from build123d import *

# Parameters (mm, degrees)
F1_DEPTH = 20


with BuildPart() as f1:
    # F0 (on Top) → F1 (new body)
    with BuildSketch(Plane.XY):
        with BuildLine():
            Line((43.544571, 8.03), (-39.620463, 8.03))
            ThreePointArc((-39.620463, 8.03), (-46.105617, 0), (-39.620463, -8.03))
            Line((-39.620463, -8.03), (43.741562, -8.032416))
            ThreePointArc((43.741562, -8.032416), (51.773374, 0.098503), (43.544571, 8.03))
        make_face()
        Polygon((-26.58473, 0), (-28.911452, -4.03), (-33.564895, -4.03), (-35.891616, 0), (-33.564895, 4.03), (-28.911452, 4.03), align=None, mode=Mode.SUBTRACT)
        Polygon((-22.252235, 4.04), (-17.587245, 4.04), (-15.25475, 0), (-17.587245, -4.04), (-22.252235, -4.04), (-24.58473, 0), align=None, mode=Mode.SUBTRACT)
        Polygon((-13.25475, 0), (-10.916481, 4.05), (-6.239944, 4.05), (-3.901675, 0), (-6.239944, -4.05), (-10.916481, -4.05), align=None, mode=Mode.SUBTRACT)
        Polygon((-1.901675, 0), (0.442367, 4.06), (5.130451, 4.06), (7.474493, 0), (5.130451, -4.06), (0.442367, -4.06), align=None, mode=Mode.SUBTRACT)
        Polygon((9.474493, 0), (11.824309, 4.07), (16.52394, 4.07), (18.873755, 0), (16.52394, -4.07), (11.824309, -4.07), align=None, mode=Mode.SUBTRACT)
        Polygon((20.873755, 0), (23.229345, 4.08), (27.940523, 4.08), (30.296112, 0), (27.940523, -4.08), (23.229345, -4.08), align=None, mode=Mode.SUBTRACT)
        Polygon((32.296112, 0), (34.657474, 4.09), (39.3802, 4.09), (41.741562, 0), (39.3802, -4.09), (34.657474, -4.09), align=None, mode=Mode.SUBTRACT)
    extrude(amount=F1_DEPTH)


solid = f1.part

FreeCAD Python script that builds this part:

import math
import FreeCAD as App
import Part
import Sketcher

V = App.Vector
Q = App.Units.Quantity

doc = App.newDocument("Part")
body = doc.addObject("PartDesign::Body", "Body")

sketch1 = body.newObject("Sketcher::SketchObject", "Sketch")
sketch1.AttachmentSupport = (doc.getObject("XY_Plane"), [""])
sketch1.MapMode = "FlatFace"
sketch1.addGeometry(Part.LineSegment(V(43.5, 8, 0), V(-39.6, 8, 0)), False)
sketch1.addGeometry(Part.ArcOfCircle(Part.Circle(V(-37.9, 0, 0), V(0, 0, 1), 8.2), math.radians(102), math.radians(258)), False)
sketch1.addGeometry(Part.LineSegment(V(-39.6, -8, 0), V(43.7, -8, 0)), False)
sketch1.addGeometry(Part.ArcOfCircle(Part.Circle(V(43.7, 0, 0), V(0, 0, 1), 8), math.radians(-90), math.radians(91)), False)
sketch1.addGeometry(Part.LineSegment(V(-28.9, 4, 0), V(-26.6, 0, 0)), False)
sketch1.addGeometry(Part.LineSegment(V(-26.6, 0, 0), V(-28.9, -4, 0)), False)
sketch1.addGeometry(Part.LineSegment(V(-28.9, -4, 0), V(-33.6, -4, 0)), False)
sketch1.addGeometry(Part.LineSegment(V(-33.6, -4, 0), V(-35.9, 0, 0)), False)
sketch1.addGeometry(Part.LineSegment(V(-35.9, 0, 0), V(-33.6, 4, 0)), False)
sketch1.addGeometry(Part.LineSegment(V(-33.6, 4, 0), V(-28.9, 4, 0)), False)
sketch1.addGeometry(Part.LineSegment(V(-24.6, 0, 0), V(-22.3, 4, 0)), False)
sketch1.addGeometry(Part.LineSegment(V(-22.3, 4, 0), V(-17.6, 4, 0)), False)
sketch1.addGeometry(Part.LineSegment(V(-17.6, 4, 0), V(-15.3, 0, 0)), False)
sketch1.addGeometry(Part.LineSegment(V(-15.3, 0, 0), V(-17.6, -4, 0)), False)
sketch1.addGeometry(Part.LineSegment(V(-17.6, -4, 0), V(-22.3, -4, 0)), False)
sketch1.addGeometry(Part.LineSegment(V(-22.3, -4, 0), V(-24.6, 0, 0)), False)
sketch1.addGeometry(Part.LineSegment(V(-10.9, -4, 0), V(-13.3, 0, 0)), False)
sketch1.addGeometry(Part.LineSegment(V(-13.3, 0, 0), V(-10.9, 4, 0)), False)
sketch1.addGeometry(Part.LineSegment(V(-10.9, 4, 0), V(-6.2, 4, 0)), False)
sketch1.addGeometry(Part.LineSegment(V(-6.2, 4, 0), V(-3.9, 0, 0)), False)
sketch1.addGeometry(Part.LineSegment(V(-3.9, 0, 0), V(-6.2, -4, 0)), False)
sketch1.addGeometry(Part.LineSegment(V(-6.2, -4, 0), V(-10.9, -4, 0)), False)
sketch1.addGeometry(Part.LineSegment(V(0.4, -4.1, 0), V(-1.9, 0, 0)), False)
sketch1.addGeometry(Part.LineSegment(V(-1.9, 0, 0), V(0.4, 4.1, 0)), False)
sketch1.addGeometry(Part.LineSegment(V(0.4, 4.1, 0), V(5.1, 4.1, 0)), False)
sketch1.addGeometry(Part.LineSegment(V(5.1, 4.1, 0), V(7.5, 0, 0)), False)
sketch1.addGeometry(Part.LineSegment(V(7.5, 0, 0), V(5.1, -4.1, 0)), False)
sketch1.addGeometry(Part.LineSegment(V(5.1, -4.1, 0), V(0.4, -4.1, 0)), False)
sketch1.addGeometry(Part.LineSegment(V(11.8, -4.1, 0), V(9.5, 0, 0)), False)
sketch1.addGeometry(Part.LineSegment(V(9.5, 0, 0), V(11.8, 4.1, 0)), False)
sketch1.addGeometry(Part.LineSegment(V(11.8, 4.1, 0), V(16.5, 4.1, 0)), False)
sketch1.addGeometry(Part.LineSegment(V(16.5, 4.1, 0), V(18.9, 0, 0)), False)
sketch1.addGeometry(Part.LineSegment(V(18.9, 0, 0), V(16.5, -4.1, 0)), False)
sketch1.addGeometry(Part.LineSegment(V(16.5, -4.1, 0), V(11.8, -4.1, 0)), False)
sketch1.addGeometry(Part.LineSegment(V(23.2, -4.1, 0), V(20.9, 0, 0)), False)
sketch1.addGeometry(Part.LineSegment(V(20.9, 0, 0), V(23.2, 4.1, 0)), False)
sketch1.addGeometry(Part.LineSegment(V(23.2, 4.1, 0), V(27.9, 4.1, 0)), False)
sketch1.addGeometry(Part.LineSegment(V(27.9, 4.1, 0), V(30.3, 0, 0)), False)
sketch1.addGeometry(Part.LineSegment(V(30.3, 0, 0), V(27.9, -4.1, 0)), False)
sketch1.addGeometry(Part.LineSegment(V(27.9, -4.1, 0), V(23.2, -4.1, 0)), False)
sketch1.addGeometry(Part.LineSegment(V(34.7, -4.1, 0), V(32.3, 0, 0)), False)
sketch1.addGeometry(Part.LineSegment(V(32.3, 0, 0), V(34.7, 4.1, 0)), False)
sketch1.addGeometry(Part.LineSegment(V(34.7, 4.1, 0), V(39.4, 4.1, 0)), False)
sketch1.addGeometry(Part.LineSegment(V(39.4, 4.1, 0), V(41.7, 0, 0)), False)
sketch1.addGeometry(Part.LineSegment(V(41.7, 0, 0), V(39.4, -4.1, 0)), False)
sketch1.addGeometry(Part.LineSegment(V(39.4, -4.1, 0), V(34.7, -4.1, 0)), False)
sketch1.addConstraint(Sketcher.Constraint("Coincident", 0, 2, 1, 1))
sketch1.addConstraint(Sketcher.Constraint("Coincident", 1, 2, 2, 1))
sketch1.addConstraint(Sketcher.Constraint("Coincident", 2, 2, 3, 1))
sketch1.addConstraint(Sketcher.Constraint("Coincident", 3, 2, 0, 1))
sketch1.addConstraint(Sketcher.Constraint("Coincident", 4, 2, 5, 1))
sketch1.addConstraint(Sketcher.Constraint("Coincident", 5, 2, 6, 1))
sketch1.addConstraint(Sketcher.Constraint("Coincident", 6, 2, 7, 1))
sketch1.addConstraint(Sketcher.Constraint("Coincident", 7, 2, 8, 1))
sketch1.addConstraint(Sketcher.Constraint("Coincident", 8, 2, 9, 1))
sketch1.addConstraint(Sketcher.Constraint("Coincident", 9, 2, 4, 1))
sketch1.addConstraint(Sketcher.Constraint("Coincident", 10, 2, 11, 1))
sketch1.addConstraint(Sketcher.Constraint("Coincident", 11, 2, 12, 1))
sketch1.addConstraint(Sketcher.Constraint("Coincident", 12, 2, 13, 1))
sketch1.addConstraint(Sketcher.Constraint("Coincident", 13, 2, 14, 1))
sketch1.addConstraint(Sketcher.Constraint("Coincident", 14, 2, 15, 1))
sketch1.addConstraint(Sketcher.Constraint("Coincident", 15, 2, 10, 1))
sketch1.addConstraint(Sketcher.Constraint("Coincident", 16, 2, 17, 1))
sketch1.addConstraint(Sketcher.Constraint("Coincident", 17, 2, 18, 1))
sketch1.addConstraint(Sketcher.Constraint("Coincident", 18, 2, 19, 1))
sketch1.addConstraint(Sketcher.Constraint("Coincident", 19, 2, 20, 1))
sketch1.addConstraint(Sketcher.Constraint("Coincident", 20, 2, 21, 1))
sketch1.addConstraint(Sketcher.Constraint("Coincident", 21, 2, 16, 1))
sketch1.addConstraint(Sketcher.Constraint("Coincident", 22, 2, 23, 1))
sketch1.addConstraint(Sketcher.Constraint("Coincident", 23, 2, 24, 1))
sketch1.addConstraint(Sketcher.Constraint("Coincident", 24, 2, 25, 1))
sketch1.addConstraint(Sketcher.Constraint("Coincident", 25, 2, 26, 1))
sketch1.addConstraint(Sketcher.Constraint("Coincident", 26, 2, 27, 1))
sketch1.addConstraint(Sketcher.Constraint("Coincident", 27, 2, 22, 1))
sketch1.addConstraint(Sketcher.Constraint("Coincident", 28, 2, 29, 1))
sketch1.addConstraint(Sketcher.Constraint("Coincident", 29, 2, 30, 1))
sketch1.addConstraint(Sketcher.Constraint("Coincident", 30, 2, 31, 1))
sketch1.addConstraint(Sketcher.Constraint("Coincident", 31, 2, 32, 1))
sketch1.addConstraint(Sketcher.Constraint("Coincident", 32, 2, 33, 1))
sketch1.addConstraint(Sketcher.Constraint("Coincident", 33, 2, 28, 1))
sketch1.addConstraint(Sketcher.Constraint("Coincident", 34, 2, 35, 1))
sketch1.addConstraint(Sketcher.Constraint("Coincident", 35, 2, 36, 1))
sketch1.addConstraint(Sketcher.Constraint("Coincident", 36, 2, 37, 1))
sketch1.addConstraint(Sketcher.Constraint("Coincident", 37, 2, 38, 1))
sketch1.addConstraint(Sketcher.Constraint("Coincident", 38, 2, 39, 1))
sketch1.addConstraint(Sketcher.Constraint("Coincident", 39, 2, 34, 1))
sketch1.addConstraint(Sketcher.Constraint("Coincident", 40, 2, 41, 1))
sketch1.addConstraint(Sketcher.Constraint("Coincident", 41, 2, 42, 1))
sketch1.addConstraint(Sketcher.Constraint("Coincident", 42, 2, 43, 1))
sketch1.addConstraint(Sketcher.Constraint("Coincident", 43, 2, 44, 1))
sketch1.addConstraint(Sketcher.Constraint("Coincident", 44, 2, 45, 1))
sketch1.addConstraint(Sketcher.Constraint("Coincident", 45, 2, 40, 1))
sketch1.addConstraint(Sketcher.Constraint("Horizontal", 0))
sketch1.addConstraint(Sketcher.Constraint("Horizontal", 6))
sketch1.addConstraint(Sketcher.Constraint("Horizontal", 9))
sketch1.addConstraint(Sketcher.Constraint("Horizontal", 11))
sketch1.addConstraint(Sketcher.Constraint("Horizontal", 14))
sketch1.addConstraint(Sketcher.Constraint("Horizontal", 18))
sketch1.addConstraint(Sketcher.Constraint("Horizontal", 21))
sketch1.addConstraint(Sketcher.Constraint("Horizontal", 24))
sketch1.addConstraint(Sketcher.Constraint("Horizontal", 27))
sketch1.addConstraint(Sketcher.Constraint("Horizontal", 30))
sketch1.addConstraint(Sketcher.Constraint("Horizontal", 33))
sketch1.addConstraint(Sketcher.Constraint("Horizontal", 36))
sketch1.addConstraint(Sketcher.Constraint("Horizontal", 39))
sketch1.addConstraint(Sketcher.Constraint("Horizontal", 42))
sketch1.addConstraint(Sketcher.Constraint("Horizontal", 45))
sketch1.addConstraint(Sketcher.Constraint("Symmetric", 0, 2, 1, 2, -1))
sketch1.addConstraint(Sketcher.Constraint("Symmetric", 6, 2, 8, 2, -1))
sketch1.addConstraint(Sketcher.Constraint("Symmetric", 11, 2, 13, 2, -1))
sketch1.addConstraint(Sketcher.Constraint("Symmetric", 18, 2, 20, 2, -1))
sketch1.addConstraint(Sketcher.Constraint("Symmetric", 24, 2, 26, 2, -1))
sketch1.addConstraint(Sketcher.Constraint("Symmetric", 30, 2, 32, 2, -1))
sketch1.addConstraint(Sketcher.Constraint("Symmetric", 36, 2, 38, 2, -1))
sketch1.addConstraint(Sketcher.Constraint("Symmetric", 42, 2, 44, 2, -1))
sketch1.addConstraint(Sketcher.Constraint("PointOnObject", 3, 3, -1))
sketch1.addConstraint(Sketcher.Constraint("PointOnObject", 4, 2, -1))
sketch1.addConstraint(Sketcher.Constraint("PointOnObject", 7, 2, -1))
sketch1.addConstraint(Sketcher.Constraint("PointOnObject", 12, 2, -1))
sketch1.addConstraint(Sketcher.Constraint("PointOnObject", 15, 2, -1))
sketch1.addConstraint(Sketcher.Constraint("PointOnObject", 16, 2, -1))
sketch1.addConstraint(Sketcher.Constraint("PointOnObject", 19, 2, -1))
sketch1.addConstraint(Sketcher.Constraint("PointOnObject", 22, 2, -1))
sketch1.addConstraint(Sketcher.Constraint("PointOnObject", 25, 2, -1))
sketch1.addConstraint(Sketcher.Constraint("PointOnObject", 28, 2, -1))
sketch1.addConstraint(Sketcher.Constraint("PointOnObject", 31, 2, -1))
sketch1.addConstraint(Sketcher.Constraint("PointOnObject", 34, 2, -1))
sketch1.addConstraint(Sketcher.Constraint("PointOnObject", 37, 2, -1))
sketch1.addConstraint(Sketcher.Constraint("PointOnObject", 40, 2, -1))
sketch1.addConstraint(Sketcher.Constraint("PointOnObject", 43, 2, -1))
sketch1.addConstraint(Sketcher.Constraint("Parallel", 4, 7))
sketch1.addConstraint(Sketcher.Constraint("Parallel", 5, 8))
sketch1.addConstraint(Sketcher.Constraint("Parallel", 8, 10))
sketch1.addConstraint(Sketcher.Constraint("Parallel", 7, 12))
sketch1.addConstraint(Sketcher.Constraint("Parallel", 12, 15))
sketch1.addConstraint(Sketcher.Constraint("Parallel", 15, 16))
sketch1.addConstraint(Sketcher.Constraint("Parallel", 13, 17))
sketch1.addConstraint(Sketcher.Constraint("Parallel", 16, 19))
sketch1.addConstraint(Sketcher.Constraint("Parallel", 19, 22))
sketch1.addConstraint(Sketcher.Constraint("Parallel", 20, 23))
sketch1.addConstraint(Sketcher.Constraint("Parallel", 22, 25))
sketch1.addConstraint(Sketcher.Constraint("Parallel", 25, 28))
sketch1.addConstraint(Sketcher.Constraint("Parallel", 26, 29))
sketch1.addConstraint(Sketcher.Constraint("Parallel", 28, 31))
sketch1.addConstraint(Sketcher.Constraint("Parallel", 31, 34))
sketch1.addConstraint(Sketcher.Constraint("Parallel", 32, 35))
sketch1.addConstraint(Sketcher.Constraint("Parallel", 34, 37))
sketch1.addConstraint(Sketcher.Constraint("Parallel", 37, 40))
sketch1.addConstraint(Sketcher.Constraint("Parallel", 38, 41))
sketch1.addConstraint(Sketcher.Constraint("Parallel", 40, 43))
sketch1.addConstraint(Sketcher.Constraint("Vertical", 3, 3, 2, 2))
sketch1.addConstraint(Sketcher.Constraint("Angle", 4, Q("-59.999996 deg")))
sketch1.addConstraint(Sketcher.Constraint("Radius", 1, 8.214001))
sketch1.addConstraint(Sketcher.Constraint("DistanceY", 1, 2, 5, 2, 4.0))
sketch1.addConstraint(Sketcher.Constraint("DistanceX", 1, 3, 7, 2, 2.0))
sketch1.addConstraint(Sketcher.Constraint("DistanceX", 4, 2, 15, 2, 2.0))
sketch1.addConstraint(Sketcher.Constraint("DistanceX", 12, 2, 16, 2, 2.0))
sketch1.addConstraint(Sketcher.Constraint("DistanceX", 19, 2, 22, 2, 2.0))
sketch1.addConstraint(Sketcher.Constraint("DistanceX", 25, 2, 28, 2, 2.0))
sketch1.addConstraint(Sketcher.Constraint("DistanceX", 31, 2, 34, 2, 2.0))
sketch1.addConstraint(Sketcher.Constraint("DistanceX", 37, 2, 40, 2, 2.0))
sketch1.addConstraint(Sketcher.Constraint("DistanceX", 43, 2, 3, 3, 2.0))
sketch1.addConstraint(Sketcher.Constraint("DistanceY", 20, 2, 18, 2, 8.1))
sketch1.addConstraint(Sketcher.Constraint("DistanceY", -1, 1, 0, 2, 8.03))
sketch1.addConstraint(Sketcher.Constraint("DistanceY", -1, 1, 10, 2, 4.04))
sketch1.addConstraint(Sketcher.Constraint("DistanceY", -1, 1, 23, 2, 4.06))
sketch1.addConstraint(Sketcher.Constraint("DistanceY", -1, 1, 29, 2, 4.07))
sketch1.addConstraint(Sketcher.Constraint("DistanceY", -1, 1, 35, 2, 4.08))
sketch1.addConstraint(Sketcher.Constraint("DistanceY", -1, 1, 41, 2, 4.09))
sketch1.addConstraint(Sketcher.Constraint("Radius", 3, 8.032416))
sketch1.addConstraint(Sketcher.Constraint("DistanceX", 11, 1, 11, 2, 4.66499))
sketch1.addConstraint(Sketcher.Constraint("DistanceX", 30, 1, 30, 2, 4.699631))
sketch1.addConstraint(Sketcher.Constraint("DistanceX", 36, 1, 36, 2, 4.711178))
sketch1.addConstraint(Sketcher.Constraint("DistanceX", -1, 1, 42, 2, 39.3802))
sketch1.addConstraint(Sketcher.Constraint("DistanceX", 4, 2, 3, 2, 70.129301))
sketch1.addConstraint(Sketcher.Constraint("DistanceX", 11, 2, 18, 2, 11.347301))
sketch1.addConstraint(Sketcher.Constraint("DistanceX", 0, 2, 0, 1, 83.165034))
sketch1.addConstraint(Sketcher.Constraint("DistanceX", 24, 1, 24, 2, 4.688084))
pad1 = body.newObject("PartDesign::Pad", "Pad")
pad1.Profile = sketch1
pad1.Length = 20

doc.recompute()
